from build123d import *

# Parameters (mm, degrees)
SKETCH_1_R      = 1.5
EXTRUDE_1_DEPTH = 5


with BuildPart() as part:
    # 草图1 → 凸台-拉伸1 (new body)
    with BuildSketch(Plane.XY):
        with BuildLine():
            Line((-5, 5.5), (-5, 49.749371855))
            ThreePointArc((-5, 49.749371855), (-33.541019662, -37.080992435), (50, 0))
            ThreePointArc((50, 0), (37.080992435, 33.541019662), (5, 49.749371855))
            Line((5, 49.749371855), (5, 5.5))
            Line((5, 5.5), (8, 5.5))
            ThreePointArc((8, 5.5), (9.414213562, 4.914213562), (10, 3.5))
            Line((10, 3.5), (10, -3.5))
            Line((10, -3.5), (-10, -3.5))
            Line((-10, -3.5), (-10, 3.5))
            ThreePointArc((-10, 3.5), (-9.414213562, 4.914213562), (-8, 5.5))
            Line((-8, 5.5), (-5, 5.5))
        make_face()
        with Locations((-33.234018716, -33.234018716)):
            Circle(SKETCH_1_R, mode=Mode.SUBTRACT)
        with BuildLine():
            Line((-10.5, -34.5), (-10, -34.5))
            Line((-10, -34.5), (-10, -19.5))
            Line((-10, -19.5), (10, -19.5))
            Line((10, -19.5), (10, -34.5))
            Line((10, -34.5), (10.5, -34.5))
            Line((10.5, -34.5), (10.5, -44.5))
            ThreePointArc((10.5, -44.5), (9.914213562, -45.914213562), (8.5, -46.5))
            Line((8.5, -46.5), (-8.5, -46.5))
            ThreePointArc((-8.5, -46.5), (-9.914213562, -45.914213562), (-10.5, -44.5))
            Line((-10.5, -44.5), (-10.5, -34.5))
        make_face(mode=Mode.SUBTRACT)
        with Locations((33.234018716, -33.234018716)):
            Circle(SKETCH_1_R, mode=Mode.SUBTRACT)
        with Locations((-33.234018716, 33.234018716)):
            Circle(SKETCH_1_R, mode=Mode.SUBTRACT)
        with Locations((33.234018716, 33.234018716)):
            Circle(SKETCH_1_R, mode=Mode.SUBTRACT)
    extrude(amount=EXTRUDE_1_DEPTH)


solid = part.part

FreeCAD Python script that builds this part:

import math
import FreeCAD as App
import Part
import Sketcher
from FreeCAD import Vector
Q = App.Units.Quantity

doc = App.newDocument("Part")
body = doc.addObject("PartDesign::Body", "Body")

# Sketch on XY plane
sketch1 = body.newObject("Sketcher::SketchObject", "Sketch")
sketch1.AttachmentSupport = (doc.getObject("XY_Plane"), [""])
sketch1.MapMode = "FlatFace"
sketch1.addGeometry([
    Part.LineSegment(Vector(-5, 5.5, 0), Vector(-5, 49.749372, 0)),  # 0
    Part.ArcOfCircle(Part.Circle(Vector(0, 0, 0), Vector(0, 0, 1), 50), math.radians(95.73917), math.radians(360)),  # 1
    Part.ArcOfCircle(Part.Circle(Vector(0, 0, 0), Vector(0, 0, 1), 50), math.radians(0), math.radians(84.26083)),  # 2
    Part.LineSegment(Vector(5, 49.749372, 0), Vector(5, 5.5, 0)),  # 3
    Part.LineSegment(Vector(5, 5.5, 0), Vector(8, 5.5, 0)),  # 4
    Part.ArcOfCircle(Part.Circle(Vector(8, 3.5, 0), Vector(0, 0, 1), 2), math.radians(0), math.radians(90)),  # 5
    Part.LineSegment(Vector(10, 3.5, 0), Vector(10, -3.5, 0)),  # 6
    Part.LineSegment(Vector(10, -3.5, 0), Vector(-10, -3.5, 0)),  # 7
    Part.LineSegment(Vector(-10, -3.5, 0), Vector(-10, 3.5, 0)),  # 8
    Part.ArcOfCircle(Part.Circle(Vector(-8, 3.5, 0), Vector(0, 0, 1), 2), math.radians(90), math.radians(180)),  # 9
    Part.LineSegment(Vector(-8, 5.5, 0), Vector(-5, 5.5, 0)),  # 10
    Part.Circle(Vector(-33.234019, -33.234019, 0), Vector(0, 0, 1), 1.5),  # 11
    Part.LineSegment(Vector(-10.5, -44.5, 0), Vector(-10.5, -34.5, 0)),  # 12
    Part.LineSegment(Vector(-10.5, -34.5, 0), Vector(-10, -34.5, 0)),  # 13
    Part.LineSegment(Vector(-10, -34.5, 0), Vector(-10, -19.5, 0)),  # 14
    Part.LineSegment(Vector(-10, -19.5, 0), Vector(10, -19.5, 0)),  # 15
    Part.LineSegment(Vector(10, -19.5, 0), Vector(10, -34.5, 0)),  # 16
    Part.LineSegment(Vector(10, -34.5, 0), Vector(10.5, -34.5, 0)),  # 17
    Part.LineSegment(Vector(10.5, -34.5, 0), Vector(10.5, -44.5, 0)),  # 18
    Part.ArcOfCircle(Part.Circle(Vector(8.5, -44.5, 0), Vector(0, 0, 1), 2), math.radians(-90), math.radians(0)),  # 19
    Part.LineSegment(Vector(8.5, -46.5, 0), Vector(-8.5, -46.5, 0)),  # 20
    Part.ArcOfCircle(Part.Circle(Vector(-8.5, -44.5, 0), Vector(0, 0, 1), 2), math.radians(-180), math.radians(-90)),  # 21
    Part.Circle(Vector(33.234019, -33.234019, 0), Vector(0, 0, 1), 1.5),  # 22
    Part.Circle(Vector(-33.234019, 33.234019, 0), Vector(0, 0, 1), 1.5),  # 23
    Part.Circle(Vector(33.234019, 33.234019, 0), Vector(0, 0, 1), 1.5),  # 24
], False)
sketch1.addConstraint([
    Sketcher.Constraint("Coincident", 0, 2, 1, 1),
    Sketcher.Constraint("Tangent", 1, 2, 2, 1),
    Sketcher.Constraint("Coincident", 2, 2, 3, 1),
    Sketcher.Constraint("Coincident", 3, 2, 4, 1),
    Sketcher.Constraint("Tangent", 4, 2, 5, 2),
    Sketcher.Constraint("Tangent", 5, 1, 6, 1),
    Sketcher.Constraint("Coincident", 6, 2, 7, 1),
    Sketcher.Constraint("Coincident", 7, 2, 8, 1),
    Sketcher.Constraint("Tangent", 8, 2, 9, 2),
    Sketcher.Constraint("Tangent", 9, 1, 10, 1),
    Sketcher.Constraint("Coincident", 10, 2, 0, 1),
    Sketcher.Constraint("Coincident", 12, 2, 13, 1),
    Sketcher.Constraint("Coincident", 13, 2, 14, 1),
    Sketcher.Constraint("Coincident", 14, 2, 15, 1),
    Sketcher.Constraint("Coincident", 15, 2, 16, 1),
    Sketcher.Constraint("Coincident", 16, 2, 17, 1),
    Sketcher.Constraint("Coincident", 17, 2, 18, 1),
    Sketcher.Constraint("Tangent", 18, 2, 19, 2),
    Sketcher.Constraint("Tangent", 19, 1, 20, 1),
    Sketcher.Constraint("Tangent", 20, 2, 21, 2),
    Sketcher.Constraint("Tangent", 21, 1, 12, 1),
    Sketcher.Constraint("Vertical", 0),
    Sketcher.Constraint("Vertical", 3),
    Sketcher.Constraint("Horizontal", 4),
    Sketcher.Constraint("Vertical", 6),
    Sketcher.Constraint("Horizontal", 7),
    Sketcher.Constraint("Vertical", 8),
    Sketcher.Constraint("Horizontal", 10),
    Sketcher.Constraint("Vertical", 12),
    Sketcher.Constraint("Horizontal", 13),
    Sketcher.Constraint("Vertical", 14),
    Sketcher.Constraint("Horizontal", 15),
    Sketcher.Constraint("Vertical", 16),
    Sketcher.Constraint("Horizontal", 17),
    Sketcher.Constraint("Vertical", 18),
    Sketcher.Constraint("Horizontal", 20),
    Sketcher.Constraint("Coincident", 1, 3, -1, 1),
    Sketcher.Constraint("Equal", 1, 2),
    Sketcher.Constraint("Equal", 5, 9),
    Sketcher.Constraint("Equal", 9, 19),
    Sketcher.Constraint("Equal", 19, 21),
    Sketcher.Constraint("Equal", 11, 22),
    Sketcher.Constraint("Equal", 22, 23),
    Sketcher.Constraint("Equal", 23, 24),
    Sketcher.Constraint("Symmetric", 22, 3, 23, 3, -1, 1),
    Sketcher.Constraint("Symmetric", 11, 3, 24, 3, -1, 1),
    Sketcher.Constraint("Symmetric", 5, 1, 7, 2, -1, 1),
    Sketcher.Constraint("Symmetric", 11, 3, 22, 3, -2),
    Sketcher.Constraint("Symmetric", 3, 2, 10, 2, -2),
    Sketcher.Constraint("Symmetric", 13, 2, 16, 2, -2),
    Sketcher.Constraint("PointOnObject", 1, 2, -1),
    Sketcher.Constraint("Vertical", 8, 2, 13, 2),
    Sketcher.Constraint("Equal", 13, 17),
    Sketcher.Constraint("Diameter", 11, Q("3 mm")),
    Sketcher.Constraint("Radius", 1, Q("50 mm")),
    Sketcher.Constraint("Radius", 5, Q("2 mm")),
    Sketcher.Constraint("DistanceX", 4, 1, 4, 2, Q("3 mm")),
    Sketcher.Constraint("DistanceX", 7, 2, 7, 1, Q("20 mm")),
    Sketcher.Constraint("DistanceX", 20, 2, 20, 1, Q("17 mm")),
    Sketcher.Constraint("DistanceY", 6, 2, 6, 1, Q("7 mm")),
    Sketcher.Constraint("DistanceY", 12, 1, 12, 2, Q("10 mm")),
    Sketcher.Constraint("DistanceY", 14, 1, 14, 2, Q("15 mm")),
    Sketcher.Constraint("DistanceY", 19, 3, 5, 3, Q("48 mm")),
    Sketcher.Constraint("DistanceX", 11, 3, -1, 1, Q("33.234019 mm")),
    Sketcher.Constraint("DistanceY", 11, 3, -1, 1, Q("33.234019 mm")),
])
pad1 = body.newObject("PartDesign::Pad", "Pad")
pad1.Profile = sketch1
pad1.Length = 5

doc.recompute()
